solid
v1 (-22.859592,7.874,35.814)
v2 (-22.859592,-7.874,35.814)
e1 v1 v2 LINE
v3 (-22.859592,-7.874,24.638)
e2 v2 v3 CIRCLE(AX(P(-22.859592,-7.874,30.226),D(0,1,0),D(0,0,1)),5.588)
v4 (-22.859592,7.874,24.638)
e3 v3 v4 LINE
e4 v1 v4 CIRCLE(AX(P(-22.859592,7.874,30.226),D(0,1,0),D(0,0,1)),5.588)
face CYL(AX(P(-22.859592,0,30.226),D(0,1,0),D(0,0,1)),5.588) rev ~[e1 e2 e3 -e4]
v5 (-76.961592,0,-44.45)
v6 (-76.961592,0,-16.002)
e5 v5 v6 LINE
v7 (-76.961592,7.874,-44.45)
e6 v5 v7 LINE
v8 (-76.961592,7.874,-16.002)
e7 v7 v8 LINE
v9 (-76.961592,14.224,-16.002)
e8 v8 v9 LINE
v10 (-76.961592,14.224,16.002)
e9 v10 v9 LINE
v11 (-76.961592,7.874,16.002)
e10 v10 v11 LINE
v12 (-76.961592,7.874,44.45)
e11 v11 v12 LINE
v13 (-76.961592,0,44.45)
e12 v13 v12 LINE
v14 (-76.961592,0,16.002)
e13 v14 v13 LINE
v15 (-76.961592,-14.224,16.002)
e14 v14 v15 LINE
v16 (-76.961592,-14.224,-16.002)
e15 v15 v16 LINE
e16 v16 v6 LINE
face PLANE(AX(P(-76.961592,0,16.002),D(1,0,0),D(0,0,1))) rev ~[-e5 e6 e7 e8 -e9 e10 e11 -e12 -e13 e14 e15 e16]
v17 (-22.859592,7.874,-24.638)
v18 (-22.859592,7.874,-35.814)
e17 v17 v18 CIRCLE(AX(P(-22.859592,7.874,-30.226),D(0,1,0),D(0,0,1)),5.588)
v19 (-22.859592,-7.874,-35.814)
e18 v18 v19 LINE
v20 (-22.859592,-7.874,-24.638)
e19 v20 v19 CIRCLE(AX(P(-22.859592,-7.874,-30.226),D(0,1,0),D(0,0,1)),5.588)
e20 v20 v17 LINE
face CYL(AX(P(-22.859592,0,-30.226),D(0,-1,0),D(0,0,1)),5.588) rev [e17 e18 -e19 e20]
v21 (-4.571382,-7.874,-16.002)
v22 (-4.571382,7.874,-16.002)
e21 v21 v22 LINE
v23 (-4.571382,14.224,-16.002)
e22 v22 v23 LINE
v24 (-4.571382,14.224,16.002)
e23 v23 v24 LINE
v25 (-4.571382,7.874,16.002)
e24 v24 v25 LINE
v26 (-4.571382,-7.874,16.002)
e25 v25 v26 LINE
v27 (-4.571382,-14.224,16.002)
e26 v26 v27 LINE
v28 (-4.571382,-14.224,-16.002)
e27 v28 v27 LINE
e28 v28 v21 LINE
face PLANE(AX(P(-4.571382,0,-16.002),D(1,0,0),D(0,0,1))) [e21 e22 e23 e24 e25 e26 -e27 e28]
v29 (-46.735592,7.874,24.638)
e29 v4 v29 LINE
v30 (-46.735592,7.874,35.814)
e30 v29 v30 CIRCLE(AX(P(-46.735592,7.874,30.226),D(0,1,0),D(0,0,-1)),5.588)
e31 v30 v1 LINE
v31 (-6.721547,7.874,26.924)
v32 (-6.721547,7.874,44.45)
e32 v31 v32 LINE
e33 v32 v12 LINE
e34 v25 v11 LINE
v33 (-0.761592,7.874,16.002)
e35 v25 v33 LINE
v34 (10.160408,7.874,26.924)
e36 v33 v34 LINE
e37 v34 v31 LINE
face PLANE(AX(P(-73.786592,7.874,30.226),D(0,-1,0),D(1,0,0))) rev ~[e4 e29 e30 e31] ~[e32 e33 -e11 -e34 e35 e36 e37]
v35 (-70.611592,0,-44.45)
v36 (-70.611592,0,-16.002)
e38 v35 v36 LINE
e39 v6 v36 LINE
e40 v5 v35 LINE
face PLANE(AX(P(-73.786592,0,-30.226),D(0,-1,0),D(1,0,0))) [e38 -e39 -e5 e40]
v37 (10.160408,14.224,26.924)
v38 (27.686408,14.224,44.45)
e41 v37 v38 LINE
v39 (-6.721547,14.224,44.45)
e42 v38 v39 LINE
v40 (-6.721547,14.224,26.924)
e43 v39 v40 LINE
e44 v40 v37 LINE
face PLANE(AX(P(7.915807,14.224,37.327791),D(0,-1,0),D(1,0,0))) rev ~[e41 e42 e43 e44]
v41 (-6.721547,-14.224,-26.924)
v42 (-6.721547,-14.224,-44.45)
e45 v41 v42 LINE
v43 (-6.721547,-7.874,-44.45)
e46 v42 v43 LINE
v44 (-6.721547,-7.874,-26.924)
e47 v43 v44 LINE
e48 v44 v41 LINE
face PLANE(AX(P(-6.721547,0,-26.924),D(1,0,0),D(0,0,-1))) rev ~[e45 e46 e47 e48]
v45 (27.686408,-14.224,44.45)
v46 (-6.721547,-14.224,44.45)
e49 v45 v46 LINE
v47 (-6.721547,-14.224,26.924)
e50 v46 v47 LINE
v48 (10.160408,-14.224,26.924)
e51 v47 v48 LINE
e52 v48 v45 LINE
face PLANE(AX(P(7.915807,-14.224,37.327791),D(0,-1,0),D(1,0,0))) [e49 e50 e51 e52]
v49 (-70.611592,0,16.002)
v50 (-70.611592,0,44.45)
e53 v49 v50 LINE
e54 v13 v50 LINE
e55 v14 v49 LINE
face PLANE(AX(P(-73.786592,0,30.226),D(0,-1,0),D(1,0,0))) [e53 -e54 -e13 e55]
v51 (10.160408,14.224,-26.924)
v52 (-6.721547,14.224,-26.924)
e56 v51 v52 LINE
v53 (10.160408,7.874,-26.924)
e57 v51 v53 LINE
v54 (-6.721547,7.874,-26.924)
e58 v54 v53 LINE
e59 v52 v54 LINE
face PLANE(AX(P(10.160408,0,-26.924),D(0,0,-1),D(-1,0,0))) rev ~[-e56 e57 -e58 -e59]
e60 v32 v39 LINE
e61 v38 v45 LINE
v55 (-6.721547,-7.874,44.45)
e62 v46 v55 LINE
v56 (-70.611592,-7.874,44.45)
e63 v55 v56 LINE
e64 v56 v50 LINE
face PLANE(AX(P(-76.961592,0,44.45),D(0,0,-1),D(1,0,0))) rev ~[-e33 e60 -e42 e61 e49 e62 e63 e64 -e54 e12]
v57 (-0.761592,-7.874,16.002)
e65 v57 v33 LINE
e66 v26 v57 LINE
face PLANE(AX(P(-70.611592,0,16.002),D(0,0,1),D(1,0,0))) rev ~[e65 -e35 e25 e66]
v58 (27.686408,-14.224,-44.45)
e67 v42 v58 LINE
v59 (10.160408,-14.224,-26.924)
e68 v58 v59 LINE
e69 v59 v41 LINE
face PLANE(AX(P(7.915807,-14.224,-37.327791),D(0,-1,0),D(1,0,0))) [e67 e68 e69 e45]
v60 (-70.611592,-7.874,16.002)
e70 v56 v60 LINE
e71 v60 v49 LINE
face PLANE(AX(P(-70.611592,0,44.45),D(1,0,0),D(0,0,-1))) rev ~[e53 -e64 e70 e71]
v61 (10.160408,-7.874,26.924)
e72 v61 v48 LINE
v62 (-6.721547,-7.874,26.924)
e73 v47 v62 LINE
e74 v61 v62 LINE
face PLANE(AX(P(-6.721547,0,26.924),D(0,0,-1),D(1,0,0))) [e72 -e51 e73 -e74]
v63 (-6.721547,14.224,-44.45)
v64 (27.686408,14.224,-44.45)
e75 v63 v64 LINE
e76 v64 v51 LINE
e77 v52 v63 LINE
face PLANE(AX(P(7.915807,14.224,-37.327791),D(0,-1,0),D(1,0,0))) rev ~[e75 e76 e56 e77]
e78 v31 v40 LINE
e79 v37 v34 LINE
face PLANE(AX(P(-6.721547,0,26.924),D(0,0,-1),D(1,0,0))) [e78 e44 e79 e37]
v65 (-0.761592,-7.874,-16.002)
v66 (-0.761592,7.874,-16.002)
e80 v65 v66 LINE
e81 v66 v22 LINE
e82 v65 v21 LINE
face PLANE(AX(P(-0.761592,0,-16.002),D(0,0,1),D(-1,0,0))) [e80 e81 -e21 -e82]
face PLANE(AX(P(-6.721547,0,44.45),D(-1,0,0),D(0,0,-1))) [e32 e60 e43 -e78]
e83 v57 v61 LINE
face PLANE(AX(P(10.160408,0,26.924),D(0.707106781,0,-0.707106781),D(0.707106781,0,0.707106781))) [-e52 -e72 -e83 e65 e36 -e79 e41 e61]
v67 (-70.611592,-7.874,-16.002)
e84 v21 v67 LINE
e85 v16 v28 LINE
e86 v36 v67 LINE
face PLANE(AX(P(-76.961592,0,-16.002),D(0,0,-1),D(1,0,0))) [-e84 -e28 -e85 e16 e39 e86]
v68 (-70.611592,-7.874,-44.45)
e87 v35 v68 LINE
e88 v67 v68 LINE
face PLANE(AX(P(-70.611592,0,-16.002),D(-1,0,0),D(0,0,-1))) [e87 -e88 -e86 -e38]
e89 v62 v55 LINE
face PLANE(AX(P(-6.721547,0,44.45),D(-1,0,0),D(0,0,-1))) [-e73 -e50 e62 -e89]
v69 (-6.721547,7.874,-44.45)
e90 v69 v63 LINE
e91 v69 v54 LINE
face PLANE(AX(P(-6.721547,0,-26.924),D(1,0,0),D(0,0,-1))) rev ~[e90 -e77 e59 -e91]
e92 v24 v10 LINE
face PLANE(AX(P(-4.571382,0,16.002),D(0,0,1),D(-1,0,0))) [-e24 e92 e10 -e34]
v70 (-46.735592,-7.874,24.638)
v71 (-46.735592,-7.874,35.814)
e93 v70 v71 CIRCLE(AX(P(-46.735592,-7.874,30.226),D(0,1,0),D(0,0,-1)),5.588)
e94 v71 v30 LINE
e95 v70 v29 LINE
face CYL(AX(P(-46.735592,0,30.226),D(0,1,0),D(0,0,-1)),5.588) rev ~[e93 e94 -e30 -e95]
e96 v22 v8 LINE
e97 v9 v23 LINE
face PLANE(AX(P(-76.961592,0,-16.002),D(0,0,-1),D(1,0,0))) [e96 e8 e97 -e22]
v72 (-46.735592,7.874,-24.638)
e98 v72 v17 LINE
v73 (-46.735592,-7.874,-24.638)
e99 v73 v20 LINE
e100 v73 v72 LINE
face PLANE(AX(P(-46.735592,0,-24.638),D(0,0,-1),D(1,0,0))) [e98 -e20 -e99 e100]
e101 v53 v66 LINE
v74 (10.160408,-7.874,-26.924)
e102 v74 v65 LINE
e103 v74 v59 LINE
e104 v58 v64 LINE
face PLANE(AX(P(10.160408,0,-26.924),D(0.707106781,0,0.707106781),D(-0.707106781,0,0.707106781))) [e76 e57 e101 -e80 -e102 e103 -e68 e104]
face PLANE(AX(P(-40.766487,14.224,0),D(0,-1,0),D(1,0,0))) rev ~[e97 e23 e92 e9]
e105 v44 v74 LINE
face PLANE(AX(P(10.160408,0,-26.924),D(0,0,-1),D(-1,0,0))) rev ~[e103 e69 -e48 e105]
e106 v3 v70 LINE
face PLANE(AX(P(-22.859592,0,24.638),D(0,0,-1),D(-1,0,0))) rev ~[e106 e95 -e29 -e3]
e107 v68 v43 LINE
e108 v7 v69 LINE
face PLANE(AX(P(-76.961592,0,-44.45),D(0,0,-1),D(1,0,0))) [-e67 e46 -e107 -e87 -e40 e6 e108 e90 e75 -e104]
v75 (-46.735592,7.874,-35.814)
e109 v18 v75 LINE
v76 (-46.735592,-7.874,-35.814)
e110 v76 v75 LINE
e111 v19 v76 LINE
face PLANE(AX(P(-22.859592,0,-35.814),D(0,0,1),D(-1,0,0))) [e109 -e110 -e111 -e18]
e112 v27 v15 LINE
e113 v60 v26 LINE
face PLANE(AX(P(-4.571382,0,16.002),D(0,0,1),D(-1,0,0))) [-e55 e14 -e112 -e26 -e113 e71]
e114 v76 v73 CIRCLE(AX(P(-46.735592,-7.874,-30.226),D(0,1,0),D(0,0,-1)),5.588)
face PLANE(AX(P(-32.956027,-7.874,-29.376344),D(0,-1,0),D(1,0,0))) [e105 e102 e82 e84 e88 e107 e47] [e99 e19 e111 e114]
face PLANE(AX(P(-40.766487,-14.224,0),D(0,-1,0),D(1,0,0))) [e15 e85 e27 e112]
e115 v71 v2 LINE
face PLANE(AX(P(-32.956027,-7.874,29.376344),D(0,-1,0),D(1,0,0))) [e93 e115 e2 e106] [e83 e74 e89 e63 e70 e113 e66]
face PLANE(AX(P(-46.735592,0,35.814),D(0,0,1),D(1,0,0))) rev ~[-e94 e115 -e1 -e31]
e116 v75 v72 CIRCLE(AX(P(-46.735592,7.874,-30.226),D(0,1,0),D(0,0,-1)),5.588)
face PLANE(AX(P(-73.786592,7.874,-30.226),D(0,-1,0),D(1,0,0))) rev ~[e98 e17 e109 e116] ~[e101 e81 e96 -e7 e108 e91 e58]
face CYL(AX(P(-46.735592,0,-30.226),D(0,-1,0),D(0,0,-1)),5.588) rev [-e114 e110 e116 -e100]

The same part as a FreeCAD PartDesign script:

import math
import FreeCAD as App
import Part
import Sketcher
Q = App.Units.Quantity

doc = App.newDocument("Part")
body = doc.addObject("PartDesign::Body", "Body")

sketch1 = body.newObject("Sketcher::SketchObject", "Sketch")
sketch1.AttachmentSupport = (doc.getObject("XZ_Plane"), [""])
sketch1.MapMode = "FlatFace"
sketch1.addGeometry(Part.LineSegment(App.Vector(-5, -16, 0), App.Vector(-5, 16, 0)), False)
sketch1.addGeometry(Part.LineSegment(App.Vector(-5, 16, 0), App.Vector(-77, 16, 0)), False)
sketch1.addGeometry(Part.LineSegment(App.Vector(-77, 16, 0), App.Vector(-77, -16, 0)), False)
sketch1.addGeometry(Part.LineSegment(App.Vector(-77, -16, 0), App.Vector(-5, -16, 0)), False)
sketch1.addConstraint(Sketcher.Constraint("Coincident", 0, 2, 1, 1))
sketch1.addConstraint(Sketcher.Constraint("Coincident", 1, 2, 2, 1))
sketch1.addConstraint(Sketcher.Constraint("Coincident", 2, 2, 3, 1))
sketch1.addConstraint(Sketcher.Constraint("Coincident", 3, 2, 0, 1))
sketch1.addConstraint(Sketcher.Constraint("Vertical", 0))
sketch1.addConstraint(Sketcher.Constraint("Horizontal", 1))
sketch1.addConstraint(Sketcher.Constraint("Vertical", 2))
sketch1.addConstraint(Sketcher.Constraint("Horizontal", 3))
sketch1.addConstraint(Sketcher.Constraint("DistanceY", 0, 1, 0, 2, Q("1.26 in")))
sketch1.addConstraint(Sketcher.Constraint("DistanceY", -1, 1, 0, 2, Q("0.63 in")))
sketch1.addConstraint(Sketcher.Constraint("DistanceX", 1, 2, 1, 1, 72.390209))
sketch1.addConstraint(Sketcher.Constraint("DistanceX", 1, 2, -1, 1, 76.961592))
pad1 = body.newObject("PartDesign::Pad", "Pad")
pad1.Profile = sketch1
pad1.Length = Q("1.12 in")
pad1.Midplane = True

sketch2 = body.newObject("Sketcher::SketchObject", "Sketch001")
sketch2.AttachmentSupport = (doc.getObject("XZ_Plane"), [""])
sketch2.MapMode = "FlatFace"
sketch2.addGeometry(Part.LineSegment(App.Vector(-1, 16, 0), App.Vector(10, 27, 0)), False)
sketch2.addGeometry(Part.LineSegment(App.Vector(10, 27, 0), App.Vector(-7, 27, 0)), False)
sketch2.addGeometry(Part.LineSegment(App.Vector(-7, 27, 0), App.Vector(-7, 44, 0)), False)
sketch2.addGeometry(Part.LineSegment(App.Vector(-7, 44, 0), App.Vector(-71, 44, 0)), False)
sketch2.addGeometry(Part.LineSegment(App.Vector(-71, 44, 0), App.Vector(-71, 16, 0)), False)
sketch2.addGeometry(Part.LineSegment(App.Vector(-71, 16, 0), App.Vector(-1, 16, 0)), False)
sketch2.addGeometry(Part.LineSegment(App.Vector(-47, 36, 0), App.Vector(-23, 36, 0)), False)
sketch2.addGeometry(Part.ArcOfCircle(Part.Circle(App.Vector(-23, 30, 0), App.Vector(0, 0, 1), 6), math.radians(-90), math.radians(90)), False)
sketch2.addGeometry(Part.LineSegment(App.Vector(-23, 25, 0), App.Vector(-47, 25, 0)), False)
sketch2.addGeometry(Part.ArcOfCircle(Part.Circle(App.Vector(-47, 30, 0), App.Vector(0, 0, 1), 6), math.radians(90), math.radians(270)), False)
sketch2.addGeometry(Part.LineSegment(App.Vector(-1, -16, 0), App.Vector(-71, -16, 0)), False)
sketch2.addGeometry(Part.LineSegment(App.Vector(-71, -16, 0), App.Vector(-71, -44, 0)), False)
sketch2.addGeometry(Part.LineSegment(App.Vector(-71, -44, 0), App.Vector(-7, -44, 0)), False)
sketch2.addGeometry(Part.LineSegment(App.Vector(-7, -44, 0), App.Vector(-7, -27, 0)), False)
sketch2.addGeometry(Part.LineSegment(App.Vector(-7, -27, 0), App.Vector(10, -27, 0)), False)
sketch2.addGeometry(Part.LineSegment(App.Vector(10, -27, 0), App.Vector(-1, -16, 0)), False)
sketch2.addGeometry(Part.ArcOfCircle(Part.Circle(App.Vector(-23, -30, 0), App.Vector(0, 0, 1), 6), math.radians(-90), math.radians(90)), False)
sketch2.addGeometry(Part.LineSegment(App.Vector(-23, -36, 0), App.Vector(-47, -36, 0)), False)
sketch2.addGeometry(Part.ArcOfCircle(Part.Circle(App.Vector(-47, -30, 0), App.Vector(0, 0, 1), 6), math.radians(90), math.radians(270)), False)
sketch2.addGeometry(Part.LineSegment(App.Vector(-47, -25, 0), App.Vector(-23, -25, 0)), False)
sketch2.addConstraint(Sketcher.Constraint("Coincident", 0, 2, 1, 1))
sketch2.addConstraint(Sketcher.Constraint("Coincident", 1, 2, 2, 1))
sketch2.addConstraint(Sketcher.Constraint("Coincident", 2, 2, 3, 1))
sketch2.addConstraint(Sketcher.Constraint("Coincident", 3, 2, 4, 1))
sketch2.addConstraint(Sketcher.Constraint("Coincident", 4, 2, 5, 1))
sketch2.addConstraint(Sketcher.Constraint("Coincident", 5, 2, 0, 1))
sketch2.addConstraint(Sketcher.Constraint("Tangent", 6, 2, 7, 2))
sketch2.addConstraint(Sketcher.Constraint("Tangent", 7, 1, 8, 1))
sketch2.addConstraint(Sketcher.Constraint("Tangent", 8, 2, 9, 2))
sketch2.addConstraint(Sketcher.Constraint("Tangent", 9, 1, 6, 1))
sketch2.addConstraint(Sketcher.Constraint("Coincident", 10, 2, 11, 1))
sketch2.addConstraint(Sketcher.Constraint("Coincident", 11, 2, 12, 1))
sketch2.addConstraint(Sketcher.Constraint("Coincident", 12, 2, 13, 1))
sketch2.addConstraint(Sketcher.Constraint("Coincident", 13, 2, 14, 1))
sketch2.addConstraint(Sketcher.Constraint("Coincident", 14, 2, 15, 1))
sketch2.addConstraint(Sketcher.Constraint("Coincident", 15, 2, 10, 1))
sketch2.addConstraint(Sketcher.Constraint("Tangent", 16, 1, 17, 1))
sketch2.addConstraint(Sketcher.Constraint("Tangent", 17, 2, 18, 2))
sketch2.addConstraint(Sketcher.Constraint("Tangent", 18, 1, 19, 1))
sketch2.addConstraint(Sketcher.Constraint("Tangent", 19, 2, 16, 2))
sketch2.addConstraint(Sketcher.Constraint("Horizontal", 1))
sketch2.addConstraint(Sketcher.Constraint("Vertical", 2))
sketch2.addConstraint(Sketcher.Constraint("Horizontal", 3))
sketch2.addConstraint(Sketcher.Constraint("Vertical", 4))
sketch2.addConstraint(Sketcher.Constraint("Horizontal", 5))
sketch2.addConstraint(Sketcher.Constraint("Horizontal", 6))
sketch2.addConstraint(Sketcher.Constraint("Horizontal", 8))
sketch2.addConstraint(Sketcher.Constraint("Horizontal", 10))
sketch2.addConstraint(Sketcher.Constraint("Vertical", 11))
sketch2.addConstraint(Sketcher.Constraint("Horizontal", 12))
sketch2.addConstraint(Sketcher.Constraint("Vertical", 13))
sketch2.addConstraint(Sketcher.Constraint("Horizontal", 14))
sketch2.addConstraint(Sketcher.Constraint("Horizontal", 17))
sketch2.addConstraint(Sketcher.Constraint("Horizontal", 19))
sketch2.addConstraint(Sketcher.Constraint("Equal", 9, 16))
sketch2.addConstraint(Sketcher.Constraint("Symmetric", 7, 3, 16, 3, -1))
sketch2.addConstraint(Sketcher.Constraint("Symmetric", 4, 2, 10, 2, -1))
sketch2.addConstraint(Sketcher.Constraint("Symmetric", 2, 2, 12, 2, -1))
sketch2.addConstraint(Sketcher.Constraint("Symmetric", 0, 2, 14, 2, -1))
sketch2.addConstraint(Sketcher.Constraint("Perpendicular", 0, 15))
sketch2.addConstraint(Sketcher.Constraint("Vertical", 9, 3, 18, 3))
sketch2.addConstraint(Sketcher.Constraint("Vertical", 5, 2, 15, 2))
sketch2.addConstraint(Sketcher.Constraint("Radius", 7, Q("0.22 in")))
sketch2.addConstraint(Sketcher.Constraint("DistanceX", 5, 1, 5, 2, Q("2.75 in")))
sketch2.addConstraint(Sketcher.Constraint("DistanceX", 6, 1, 6, 2, Q("0.94 in")))
sketch2.addConstraint(Sketcher.Constraint("DistanceY", 2, 1, 2, 2, Q("0.69 in")))
sketch2.addConstraint(Sketcher.Constraint("DistanceY", 4, 2, 4, 1, Q("1.12 in")))
sketch2.addConstraint(Sketcher.Constraint("DistanceX", 7, 3, 0, 2, Q("1.3 in")))
sketch2.addConstraint(Sketcher.Constraint("DistanceY", 10, 2, 8, 2, Q("1.6 in")))
sketch2.addConstraint(Sketcher.Constraint("DistanceY", -1, 1, 7, 3, Q("1.19 in")))
sketch2.addConstraint(Sketcher.Constraint("DistanceX", 1, 2, 1, 1, 16.881955))
sketch2.addConstraint(Sketcher.Constraint("DistanceX", 7, 3, -1, 1, 22.859592))
pad2 = body.newObject("PartDesign::Pad", "Pad001")
pad2.Profile = sketch2
pad2.Length = Q("0.62 in")
pad2.Midplane = True

sketch3 = body.newObject("Sketcher::SketchObject", "Sketch002")
sketch3.AttachmentSupport = (doc.getObject("XZ_Plane"), [""])
sketch3.MapMode = "FlatFace"
sketch3.addGeometry(Part.LineSegment(App.Vector(28, -44, 0), App.Vector(10, -27, 0)), False)
sketch3.addGeometry(Part.LineSegment(App.Vector(10, -27, 0), App.Vector(-7, -27, 0)), False)
sketch3.addGeometry(Part.LineSegment(App.Vector(-7, -27, 0), App.Vector(-7, -44, 0)), False)
sketch3.addGeometry(Part.LineSegment(App.Vector(-7, -44, 0), App.Vector(28, -44, 0)), False)
sketch3.addGeometry(Part.LineSegment(App.Vector(-7, 27, 0), App.Vector(10, 27, 0)), False)
sketch3.addGeometry(Part.LineSegment(App.Vector(10, 27, 0), App.Vector(28, 44, 0)), False)
sketch3.addGeometry(Part.LineSegment(App.Vector(28, 44, 0), App.Vector(-7, 44, 0)), False)
sketch3.addGeometry(Part.LineSegment(App.Vector(-7, 44, 0), App.Vector(-7, 27, 0)), False)
sketch3.addConstraint(Sketcher.Constraint("Coincident", 0, 2, 1, 1))
sketch3.addConstraint(Sketcher.Constraint("Coincident", 1, 2, 2, 1))
sketch3.addConstraint(Sketcher.Constraint("Coincident", 2, 2, 3, 1))
sketch3.addConstraint(Sketcher.Constraint("Coincident", 3, 2, 0, 1))
sketch3.addConstraint(Sketcher.Constraint("Coincident", 4, 2, 5, 1))
sketch3.addConstraint(Sketcher.Constraint("Coincident", 5, 2, 6, 1))
sketch3.addConstraint(Sketcher.Constraint("Coincident", 6, 2, 7, 1))
sketch3.addConstraint(Sketcher.Constraint("Coincident", 7, 2, 4, 1))
sketch3.addConstraint(Sketcher.Constraint("Horizontal", 1))
sketch3.addConstraint(Sketcher.Constraint("Vertical", 2))
sketch3.addConstraint(Sketcher.Constraint("Horizontal", 3))
sketch3.addConstraint(Sketcher.Constraint("Horizontal", 4))
sketch3.addConstraint(Sketcher.Constraint("Horizontal", 6))
sketch3.addConstraint(Sketcher.Constraint("Vertical", 7))
sketch3.addConstraint(Sketcher.Constraint("Symmetric", 0, 2, 4, 2, -1))
sketch3.addConstraint(Sketcher.Constraint("Symmetric", 3, 2, 5, 2, -1))
sketch3.addConstraint(Sketcher.Constraint("Perpendicular", 0, 5))
sketch3.addConstraint(Sketcher.Constraint("Vertical", 2, 2, 6, 2))
sketch3.addConstraint(Sketcher.Constraint("DistanceY", 2, 2, 2, 1, Q("0.69 in")))
sketch3.addConstraint(Sketcher.Constraint("DistanceY", 3, 2, 5, 2, Q("3.5 in")))
sketch3.addConstraint(Sketcher.Constraint("DistanceX", 1, 2, 1, 1, 16.881955))
sketch3.addConstraint(Sketcher.Constraint("DistanceX", -1, 1, 0, 2, 10.160408))
pad3 = body.newObject("PartDesign::Pad", "Pad002")
pad3.Profile = sketch3
pad3.Length = Q("1.12 in")
pad3.Midplane = True

sketch4 = body.newObject("Sketcher::SketchObject", "Sketch003")
sketch4.AttachmentSupport = (doc.getObject("XZ_Plane"), [""])
sketch4.MapMode = "FlatFace"
sketch4.addGeometry(Part.LineSegment(App.Vector(-77, 44, 0), App.Vector(-77, 16, 0)), False)
sketch4.addGeometry(Part.LineSegment(App.Vector(-77, 16, 0), App.Vector(-71, 16, 0)), False)
sketch4.addGeometry(Part.LineSegment(App.Vector(-71, 16, 0), App.Vector(-71, 44, 0)), False)
sketch4.addGeometry(Part.LineSegment(App.Vector(-71, 44, 0), App.Vector(-77, 44, 0)), False)
sketch4.addGeometry(Part.LineSegment(App.Vector(-77, -16, 0), App.Vector(-77, -44, 0)), False)
sketch4.addGeometry(Part.LineSegment(App.Vector(-77, -44, 0), App.Vector(-71, -44, 0)), False)
sketch4.addGeometry(Part.LineSegment(App.Vector(-71, -44, 0), App.Vector(-71, -16, 0)), False)
sketch4.addGeometry(Part.LineSegment(App.Vector(-71, -16, 0), App.Vector(-77, -16, 0)), False)
sketch4.addConstraint(Sketcher.Constraint("Coincident", 0, 2, 1, 1))
sketch4.addConstraint(Sketcher.Constraint("Coincident", 1, 2, 2, 1))
sketch4.addConstraint(Sketcher.Constraint("Coincident", 2, 2, 3, 1))
sketch4.addConstraint(Sketcher.Constraint("Coincident", 3, 2, 0, 1))
sketch4.addConstraint(Sketcher.Constraint("Coincident", 4, 2, 5, 1))
sketch4.addConstraint(Sketcher.Constraint("Coincident", 5, 2, 6, 1))
sketch4.addConstraint(Sketcher.Constraint("Coincident", 6, 2, 7, 1))
sketch4.addConstraint(Sketcher.Constraint("Coincident", 7, 2, 4, 1))
sketch4.addConstraint(Sketcher.Constraint("Vertical", 0))
sketch4.addConstraint(Sketcher.Constraint("Horizontal", 1))
sketch4.addConstraint(Sketcher.Constraint("Vertical", 2))
sketch4.addConstraint(Sketcher.Constraint("Horizontal", 3))
sketch4.addConstraint(Sketcher.Constraint("Vertical", 4))
sketch4.addConstraint(Sketcher.Constraint("Horizontal", 5))
sketch4.addConstraint(Sketcher.Constraint("Vertical", 6))
sketch4.addConstraint(Sketcher.Constraint("Horizontal", 7))
sketch4.addConstraint(Sketcher.Constraint("Symmetric", 3, 2, 4, 2, -1))
sketch4.addConstraint(Sketcher.Constraint("Symmetric", 1, 2, 6, 2, -1))
sketch4.addConstraint(Sketcher.Constraint("DistanceX", 1, 1, 1, 2, Q("0.25 in")))
sketch4.addConstraint(Sketcher.Constraint("DistanceY", 0, 2, 0, 1, Q("1.12 in")))
sketch4.addConstraint(Sketcher.Constraint("DistanceY", 4, 2, 3, 2, Q("3.5 in")))
sketch4.addConstraint(Sketcher.Constraint("DistanceX", 0, 2, -1, 1, 76.961592))
pad4 = body.newObject("PartDesign::Pad", "Pad003")
pad4.Profile = sketch4
pad4.Length = Q("0.31 in")
pad4.Reversed = True

doc.recompute()
